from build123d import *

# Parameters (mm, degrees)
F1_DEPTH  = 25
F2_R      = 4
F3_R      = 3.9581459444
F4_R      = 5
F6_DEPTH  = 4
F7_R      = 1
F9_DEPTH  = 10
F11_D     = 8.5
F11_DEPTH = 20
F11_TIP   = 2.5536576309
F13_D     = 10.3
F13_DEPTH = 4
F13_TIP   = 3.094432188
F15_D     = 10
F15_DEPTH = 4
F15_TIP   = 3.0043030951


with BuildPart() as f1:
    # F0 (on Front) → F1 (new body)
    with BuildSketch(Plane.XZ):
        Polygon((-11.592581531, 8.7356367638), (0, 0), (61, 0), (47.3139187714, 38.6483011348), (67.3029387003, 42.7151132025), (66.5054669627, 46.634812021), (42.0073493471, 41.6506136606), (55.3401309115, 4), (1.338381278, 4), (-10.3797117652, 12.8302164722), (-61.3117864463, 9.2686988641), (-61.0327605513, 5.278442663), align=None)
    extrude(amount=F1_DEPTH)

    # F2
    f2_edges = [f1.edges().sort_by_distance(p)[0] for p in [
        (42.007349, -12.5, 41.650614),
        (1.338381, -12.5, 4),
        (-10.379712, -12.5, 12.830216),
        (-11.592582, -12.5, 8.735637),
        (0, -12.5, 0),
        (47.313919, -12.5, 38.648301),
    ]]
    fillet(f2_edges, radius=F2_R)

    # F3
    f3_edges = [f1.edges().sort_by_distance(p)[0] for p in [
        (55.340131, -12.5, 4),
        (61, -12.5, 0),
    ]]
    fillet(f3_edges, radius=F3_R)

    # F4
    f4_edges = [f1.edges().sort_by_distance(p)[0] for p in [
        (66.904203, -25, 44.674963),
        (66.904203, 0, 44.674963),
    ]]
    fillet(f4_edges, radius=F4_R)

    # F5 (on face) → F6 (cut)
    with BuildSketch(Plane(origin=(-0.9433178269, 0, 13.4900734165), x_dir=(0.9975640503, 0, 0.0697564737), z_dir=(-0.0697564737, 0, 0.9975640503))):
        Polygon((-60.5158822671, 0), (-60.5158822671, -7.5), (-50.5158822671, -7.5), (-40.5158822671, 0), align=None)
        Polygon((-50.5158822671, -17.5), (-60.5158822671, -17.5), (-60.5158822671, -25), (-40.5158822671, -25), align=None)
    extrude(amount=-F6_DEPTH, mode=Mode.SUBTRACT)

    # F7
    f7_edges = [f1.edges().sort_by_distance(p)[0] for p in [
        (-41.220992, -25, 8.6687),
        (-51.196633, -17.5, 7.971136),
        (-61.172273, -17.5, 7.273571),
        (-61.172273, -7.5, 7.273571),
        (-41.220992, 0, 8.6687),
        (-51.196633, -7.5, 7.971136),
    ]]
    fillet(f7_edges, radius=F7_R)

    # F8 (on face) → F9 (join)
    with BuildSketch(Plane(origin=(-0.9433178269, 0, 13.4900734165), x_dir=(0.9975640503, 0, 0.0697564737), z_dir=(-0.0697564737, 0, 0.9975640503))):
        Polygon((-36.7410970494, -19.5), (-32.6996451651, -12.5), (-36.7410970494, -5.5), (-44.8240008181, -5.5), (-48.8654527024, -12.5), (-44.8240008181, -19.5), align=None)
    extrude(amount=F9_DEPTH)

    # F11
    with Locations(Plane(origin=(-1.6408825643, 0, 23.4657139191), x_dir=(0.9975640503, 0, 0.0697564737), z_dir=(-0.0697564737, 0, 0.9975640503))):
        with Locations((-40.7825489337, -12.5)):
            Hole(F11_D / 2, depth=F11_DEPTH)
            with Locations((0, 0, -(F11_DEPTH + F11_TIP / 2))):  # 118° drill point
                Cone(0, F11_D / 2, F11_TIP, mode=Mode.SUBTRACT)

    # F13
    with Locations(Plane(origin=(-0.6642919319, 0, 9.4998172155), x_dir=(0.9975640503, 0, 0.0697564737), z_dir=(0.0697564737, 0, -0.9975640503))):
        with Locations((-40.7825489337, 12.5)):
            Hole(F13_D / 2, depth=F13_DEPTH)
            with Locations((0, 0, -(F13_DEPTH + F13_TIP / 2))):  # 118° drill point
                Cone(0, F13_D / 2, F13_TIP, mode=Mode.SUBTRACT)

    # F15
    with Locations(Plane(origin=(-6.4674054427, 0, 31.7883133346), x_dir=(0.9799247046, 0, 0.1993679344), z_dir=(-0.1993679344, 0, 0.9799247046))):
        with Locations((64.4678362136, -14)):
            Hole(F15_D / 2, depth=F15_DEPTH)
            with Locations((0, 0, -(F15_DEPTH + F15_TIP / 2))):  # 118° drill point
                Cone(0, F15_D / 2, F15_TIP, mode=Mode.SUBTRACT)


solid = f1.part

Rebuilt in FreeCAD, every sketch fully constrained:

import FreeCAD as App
import Part
import Sketcher
Q = App.Units.Quantity


def edges_at(feature, points):
    """Names of the edges that pass closest to the given points."""
    edges = feature.Shape.Edges
    near = lambda p: min(range(len(edges)), key=lambda i: edges[i].distToShape(Part.Vertex(*p))[0])
    return sorted({f"Edge{near(p) + 1}" for p in points})


def add_polygon(sketch, points):
    """Adds a closed chain of lines whose ends are joined by coincident constraints."""
    first, n = sketch.GeometryCount, len(points)
    for a, b in zip(points, points[1:] + points[:1]):
        sketch.addGeometry(Part.LineSegment(App.Vector(*a, 0), App.Vector(*b, 0)), False)
    for i in range(n):
        sketch.addConstraint(Sketcher.Constraint("Coincident", first + i, 2, first + (i + 1) % n, 1))

doc = App.newDocument("Part")
params = doc.addObject("Spreadsheet::Sheet", "Params")
for row, (alias, value) in enumerate([
    ("sketch1_width", "61 mm"),
    ("sketch1_length", "41 mm"),
    ("sketch1_length2", "4 mm"),
    ("sketch1_length3", "25 mm"),
    ("pad1_length", "25 mm"),
    ("fillet_radius", "4 mm"),
    ("fillet2_radius", "3.958146 mm"),
    ("fillet3_radius", "5 mm"),
    ("sketch2_width", "10 mm"),
    ("sketch2_width2", "20 mm"),
    ("sketch2_height", "7.5 mm"),
    ("pocket1_length", "4 mm"),
    ("fillet4_radius", "1 mm"),
    ("pad2_length", "10 mm"),
    ("sketch4_diameter", "8.5 mm"),
    ("hole_diameter", "8.5 mm"),
    ("hole_depth", "20 mm"),
    ("sketch5_diameter", "10.3 mm"),
    ("hole2_diameter", "10.3 mm"),
    ("hole2_depth", "4 mm"),
    ("sketch6_diameter", "10 mm"),
    ("hole3_diameter", "10 mm"),
    ("hole3_depth", "4 mm"),
], start=1):
    params.set(f"A{row}", alias)
    params.set(f"B{row}", "=" + value)
    params.setAlias(f"B{row}", alias)

body = doc.addObject("PartDesign::Body", "Body")

sketch1 = doc.addObject("Sketcher::SketchObject", "Sketch")
body.addObject(sketch1)
sketch1.AttachmentSupport = (doc.XZ_Plane, [""])
sketch1.MapMode = "FlatFace"
add_polygon(sketch1, [(-11.6, 8.7), (0, 0), (61, 0), (47.3, 38.6), (67.3, 42.7), (66.5, 46.6), (42, 41.7), (55.3, 4), (1.3, 4), (-10.4, 12.8), (-61.3, 9.3), (-61, 5.3)])
sketch1.addConstraint([
    Sketcher.Constraint("Horizontal", 1),
    Sketcher.Constraint("Horizontal", 7),
    Sketcher.Constraint("Coincident", 0, 2, -1, 1),
    Sketcher.Constraint("Perpendicular", 3, 4),
    Sketcher.Constraint("Perpendicular", 4, 5),
    Sketcher.Constraint("Parallel", 2, 6),
    Sketcher.Constraint("Parallel", 0, 8),
    Sketcher.Constraint("Perpendicular", 9, 10),
    Sketcher.Constraint("Perpendicular", 10, 11),
    Sketcher.Constraint("Equal", 4, 10),
    Sketcher.Constraint("DistanceX", 1, 1, 1, 2, Q("61 mm")),
    Sketcher.Constraint("Angle", 0, Q("-37 deg")),
    Sketcher.Constraint("Angle", 9, Q("-176 deg")),
    Sketcher.Constraint("Distance", 2, Q("41 mm")),
    Sketcher.Constraint("Distance", 4, Q("4 mm")),
    Sketcher.Constraint("Distance", 5, Q("25 mm")),
    Sketcher.Constraint("DistanceY", -1, 1, 6, 2, Q("4 mm")),
    Sketcher.Constraint("Angle", 2, Q("109.5 deg")),
    Sketcher.Constraint("Angle", 3, Q("11.5 deg")),
    Sketcher.Constraint("DistanceX", 7, 2, 7, 1, Q("54.00175 mm")),
    Sketcher.Constraint("DistanceY", -1, 1, 9, 2, Q("9.268699 mm")),
    Sketcher.Constraint("DistanceX", -1, 1, 3, 2, Q("67.302939 mm")),
    Sketcher.Constraint("DistanceX", 8, 2, -1, 1, Q("10.379712 mm")),
])
sketch1.setExpression("Constraints[22]", "Params.sketch1_width")
sketch1.setExpression("Constraints[25]", "Params.sketch1_length")
sketch1.setExpression("Constraints[26]", "Params.sketch1_length2")
sketch1.setExpression("Constraints[27]", "Params.sketch1_length3")
pad1 = doc.addObject("PartDesign::Pad", "Pad")
body.addObject(pad1)
pad1.Profile = sketch1
pad1.setExpression("Length", "Params.pad1_length")
doc.recompute()

fillet = doc.addObject("PartDesign::Fillet", "Fillet")
body.addObject(fillet)
fillet.Base = (pad1, edges_at(pad1, [
    (42.007, -12.5, 41.651),
    (1.338, -12.5, 4),
    (-10.38, -12.5, 12.83),
    (-11.593, -12.5, 8.736),
    (0, -12.5, 0),
    (47.314, -12.5, 38.648),
]))
fillet.setExpression("Radius", "Params.fillet_radius")
doc.recompute()

fillet2 = doc.addObject("PartDesign::Fillet", "Fillet001")
body.addObject(fillet2)
fillet2.Base = (fillet, edges_at(fillet, [(55.34, -12.5, 4), (61, -12.5, 0)]))
fillet2.setExpression("Radius", "Params.fillet2_radius")
doc.recompute()

fillet3 = doc.addObject("PartDesign::Fillet", "Fillet002")
body.addObject(fillet3)
fillet3.Base = (fillet2, edges_at(fillet2, [(66.904, -25, 44.675), (66.904, 0, 44.675)]))
fillet3.setExpression("Radius", "Params.fillet3_radius")

sketch2 = doc.addObject("Sketcher::SketchObject", "Sketch001")
body.addObject(sketch2)
sketch2.Placement = App.Placement(App.Vector(-0.943318, 0, 13.490073), App.Rotation(App.Vector(0.99756405, 0, 0.069756474), App.Vector(0, 1, 0), App.Vector(-0.069756474, 0, 0.99756405), "ZXY"))
add_polygon(sketch2, [(-61, 0), (-61, -7), (-51, -7), (-41, 0)])
add_polygon(sketch2, [(-51, -17), (-61, -17), (-61, -25), (-41, -25)])
sketch2.addConstraint([
    Sketcher.Constraint("Vertical", 0),
    Sketcher.Constraint("Horizontal", 1),
    Sketcher.Constraint("Horizontal", 3),
    Sketcher.Constraint("Horizontal", 4),
    Sketcher.Constraint("Vertical", 5),
    Sketcher.Constraint("Horizontal", 6),
    Sketcher.Constraint("PointOnObject", 2, 2, -1),
    Sketcher.Constraint("Vertical", 3, 2, 4, 2),
    Sketcher.Constraint("Vertical", 2, 2, 6, 2),
    Sketcher.Constraint("Vertical", 1, 2, 7, 2),
    Sketcher.Constraint("Equal", 0, 5),
    Sketcher.Constraint("DistanceX", 1, 1, 1, 2, Q("10 mm")),
    Sketcher.Constraint("DistanceX", 3, 2, 3, 1, Q("20 mm")),
    Sketcher.Constraint("DistanceY", 0, 2, 0, 1, Q("7.5 mm")),
    Sketcher.Constraint("DistanceY", 5, 2, -1, 1, Q("25 mm")),
    Sketcher.Constraint("DistanceX", 0, 2, -1, 1, Q("60.515882 mm")),
])
sketch2.setExpression("Constraints[19]", "Params.sketch2_width")
sketch2.setExpression("Constraints[20]", "Params.sketch2_width2")
sketch2.setExpression("Constraints[21]", "Params.sketch2_height")
pocket1 = doc.addObject("PartDesign::Pocket", "Pocket")
body.addObject(pocket1)
pocket1.Profile = sketch2
pocket1.setExpression("Length", "Params.pocket1_length")
doc.recompute()

fillet4 = doc.addObject("PartDesign::Fillet", "Fillet003")
body.addObject(fillet4)
fillet4.Base = (pocket1, edges_at(pocket1, [
    (-41.221, -25, 8.669),
    (-51.197, -17.5, 7.971),
    (-61.172, -17.5, 7.274),
    (-61.172, -7.5, 7.274),
    (-41.221, 0, 8.669),
    (-51.197, -7.5, 7.971),
]))
fillet4.setExpression("Radius", "Params.fillet4_radius")

sketch3 = doc.addObject("Sketcher::SketchObject", "Sketch002")
body.addObject(sketch3)
sketch3.Placement = App.Placement(App.Vector(-0.943318, 0, 13.490073), App.Rotation(App.Vector(0.99756405, 0, 0.069756474), App.Vector(0, 1, 0), App.Vector(-0.069756474, 0, 0.99756405), "ZXY"))
add_polygon(sketch3, [(-37, -19), (-33, -12), (-37, -5), (-45, -5), (-49, -12), (-45, -19)])
sketch3.addConstraint([
    Sketcher.Constraint("Horizontal", 2),
    Sketcher.Constraint("Horizontal", 5),
    Sketcher.Constraint("Parallel", 0, 3),
    Sketcher.Constraint("Parallel", 1, 4),
    Sketcher.Constraint("Horizontal", 0, 2, 3, 2),
    Sketcher.Constraint("Vertical", 2, 2, 4, 2),
    Sketcher.Constraint("Vertical", 1, 2, 5, 2),
    Sketcher.Constraint("Angle", 0, Q("60 deg")),
    Sketcher.Constraint("DistanceY", 0, 2, 1, 2, Q("7 mm")),
    Sketcher.Constraint("DistanceY", 0, 2, -1, 1, Q("12.5 mm")),
    Sketcher.Constraint("DistanceX", 2, 2, -1, 1, Q("44.824001 mm")),
    Sketcher.Constraint("DistanceX", 2, 2, 2, 1, Q("8.082904 mm")),
])
pad2 = doc.addObject("PartDesign::Pad", "Pad001")
body.addObject(pad2)
pad2.Profile = sketch3
pad2.setExpression("Length", "Params.pad2_length")

sketch4 = doc.addObject("Sketcher::SketchObject", "Sketch003")
body.addObject(sketch4)
sketch4.Placement = App.Placement(App.Vector(-1.640883, 0, 23.465714), App.Rotation(App.Vector(0.99756405, 0, 0.069756474), App.Vector(0, 1, 0), App.Vector(-0.069756474, 0, 0.99756405), "ZXY"))
sketch4.addGeometry(Part.Circle(App.Vector(-40.8, -12.5, 0), App.Vector(0, 0, 1), 4.2), False)
sketch4.addConstraint([
    Sketcher.Constraint("Diameter", 0, Q("8.5 mm")),
    Sketcher.Constraint("DistanceY", 0, 3, -1, 1, Q("12.5 mm")),
    Sketcher.Constraint("DistanceX", 0, 3, -1, 1, Q("40.782549 mm")),
])
sketch4.setExpression("Constraints[0]", "Params.sketch4_diameter")
doc.recompute()
hole = doc.addObject("PartDesign::Hole", "Hole")
body.addObject(hole)
hole.Profile = sketch4
hole.ThreadType = "None"
hole.setExpression("Diameter", "Params.hole_diameter")
hole.DepthType = "Dimension"
hole.setExpression("Depth", "Params.hole_depth")
hole.DrillPoint = "Angled"
hole.DrillPointAngle = 118

sketch5 = doc.addObject("Sketcher::SketchObject", "Sketch004")
body.addObject(sketch5)
sketch5.Placement = App.Placement(App.Vector(-0.664292, 0, 9.499817), App.Rotation(App.Vector(0.99756405, 0, 0.069756474), App.Vector(0, -1, 0), App.Vector(0.069756474, 0, -0.99756405), "ZXY"))
sketch5.addGeometry(Part.Circle(App.Vector(-41, 12, 0), App.Vector(0, 0, 1), 5), False)
sketch5.addConstraint([
    Sketcher.Constraint("Diameter", 0, Q("10.3 mm")),
    Sketcher.Constraint("DistanceY", -1, 1, 0, 3, Q("12.5 mm")),
    Sketcher.Constraint("DistanceX", 0, 3, -1, 1, Q("40.782549 mm")),
])
sketch5.setExpression("Constraints[0]", "Params.sketch5_diameter")
doc.recompute()
hole2 = doc.addObject("PartDesign::Hole", "Hole001")
body.addObject(hole2)
hole2.Profile = sketch5
hole2.ThreadType = "None"
hole2.setExpression("Diameter", "Params.hole2_diameter")
hole2.DepthType = "Dimension"
hole2.setExpression("Depth", "Params.hole2_depth")
hole2.DrillPoint = "Angled"
hole2.DrillPointAngle = 118

sketch6 = doc.addObject("Sketcher::SketchObject", "Sketch005")
body.addObject(sketch6)
sketch6.Placement = App.Placement(App.Vector(-6.467405, 0, 31.788313), App.Rotation(App.Vector(0.979924705, 0, 0.199367934), App.Vector(0, 1.000000001, 0), App.Vector(-0.199367934, 0, 0.979924705), "ZXY"))
sketch6.addGeometry(Part.Circle(App.Vector(64, -14, 0), App.Vector(0, 0, 1), 5), False)
sketch6.addConstraint([
    Sketcher.Constraint("Diameter", 0, Q("10 mm")),
    Sketcher.Constraint("DistanceY", 0, 3, -1, 1, Q("14 mm")),
    Sketcher.Constraint("DistanceX", -1, 1, 0, 3, Q("64.467836 mm")),
])
sketch6.setExpression("Constraints[0]", "Params.sketch6_diameter")
doc.recompute()
hole3 = doc.addObject("PartDesign::Hole", "Hole002")
body.addObject(hole3)
hole3.Profile = sketch6
hole3.ThreadType = "None"
hole3.setExpression("Diameter", "Params.hole3_diameter")
hole3.DepthType = "Dimension"
hole3.setExpression("Depth", "Params.hole3_depth")
hole3.DrillPoint = "Angled"
hole3.DrillPointAngle = 118

doc.recompute()
